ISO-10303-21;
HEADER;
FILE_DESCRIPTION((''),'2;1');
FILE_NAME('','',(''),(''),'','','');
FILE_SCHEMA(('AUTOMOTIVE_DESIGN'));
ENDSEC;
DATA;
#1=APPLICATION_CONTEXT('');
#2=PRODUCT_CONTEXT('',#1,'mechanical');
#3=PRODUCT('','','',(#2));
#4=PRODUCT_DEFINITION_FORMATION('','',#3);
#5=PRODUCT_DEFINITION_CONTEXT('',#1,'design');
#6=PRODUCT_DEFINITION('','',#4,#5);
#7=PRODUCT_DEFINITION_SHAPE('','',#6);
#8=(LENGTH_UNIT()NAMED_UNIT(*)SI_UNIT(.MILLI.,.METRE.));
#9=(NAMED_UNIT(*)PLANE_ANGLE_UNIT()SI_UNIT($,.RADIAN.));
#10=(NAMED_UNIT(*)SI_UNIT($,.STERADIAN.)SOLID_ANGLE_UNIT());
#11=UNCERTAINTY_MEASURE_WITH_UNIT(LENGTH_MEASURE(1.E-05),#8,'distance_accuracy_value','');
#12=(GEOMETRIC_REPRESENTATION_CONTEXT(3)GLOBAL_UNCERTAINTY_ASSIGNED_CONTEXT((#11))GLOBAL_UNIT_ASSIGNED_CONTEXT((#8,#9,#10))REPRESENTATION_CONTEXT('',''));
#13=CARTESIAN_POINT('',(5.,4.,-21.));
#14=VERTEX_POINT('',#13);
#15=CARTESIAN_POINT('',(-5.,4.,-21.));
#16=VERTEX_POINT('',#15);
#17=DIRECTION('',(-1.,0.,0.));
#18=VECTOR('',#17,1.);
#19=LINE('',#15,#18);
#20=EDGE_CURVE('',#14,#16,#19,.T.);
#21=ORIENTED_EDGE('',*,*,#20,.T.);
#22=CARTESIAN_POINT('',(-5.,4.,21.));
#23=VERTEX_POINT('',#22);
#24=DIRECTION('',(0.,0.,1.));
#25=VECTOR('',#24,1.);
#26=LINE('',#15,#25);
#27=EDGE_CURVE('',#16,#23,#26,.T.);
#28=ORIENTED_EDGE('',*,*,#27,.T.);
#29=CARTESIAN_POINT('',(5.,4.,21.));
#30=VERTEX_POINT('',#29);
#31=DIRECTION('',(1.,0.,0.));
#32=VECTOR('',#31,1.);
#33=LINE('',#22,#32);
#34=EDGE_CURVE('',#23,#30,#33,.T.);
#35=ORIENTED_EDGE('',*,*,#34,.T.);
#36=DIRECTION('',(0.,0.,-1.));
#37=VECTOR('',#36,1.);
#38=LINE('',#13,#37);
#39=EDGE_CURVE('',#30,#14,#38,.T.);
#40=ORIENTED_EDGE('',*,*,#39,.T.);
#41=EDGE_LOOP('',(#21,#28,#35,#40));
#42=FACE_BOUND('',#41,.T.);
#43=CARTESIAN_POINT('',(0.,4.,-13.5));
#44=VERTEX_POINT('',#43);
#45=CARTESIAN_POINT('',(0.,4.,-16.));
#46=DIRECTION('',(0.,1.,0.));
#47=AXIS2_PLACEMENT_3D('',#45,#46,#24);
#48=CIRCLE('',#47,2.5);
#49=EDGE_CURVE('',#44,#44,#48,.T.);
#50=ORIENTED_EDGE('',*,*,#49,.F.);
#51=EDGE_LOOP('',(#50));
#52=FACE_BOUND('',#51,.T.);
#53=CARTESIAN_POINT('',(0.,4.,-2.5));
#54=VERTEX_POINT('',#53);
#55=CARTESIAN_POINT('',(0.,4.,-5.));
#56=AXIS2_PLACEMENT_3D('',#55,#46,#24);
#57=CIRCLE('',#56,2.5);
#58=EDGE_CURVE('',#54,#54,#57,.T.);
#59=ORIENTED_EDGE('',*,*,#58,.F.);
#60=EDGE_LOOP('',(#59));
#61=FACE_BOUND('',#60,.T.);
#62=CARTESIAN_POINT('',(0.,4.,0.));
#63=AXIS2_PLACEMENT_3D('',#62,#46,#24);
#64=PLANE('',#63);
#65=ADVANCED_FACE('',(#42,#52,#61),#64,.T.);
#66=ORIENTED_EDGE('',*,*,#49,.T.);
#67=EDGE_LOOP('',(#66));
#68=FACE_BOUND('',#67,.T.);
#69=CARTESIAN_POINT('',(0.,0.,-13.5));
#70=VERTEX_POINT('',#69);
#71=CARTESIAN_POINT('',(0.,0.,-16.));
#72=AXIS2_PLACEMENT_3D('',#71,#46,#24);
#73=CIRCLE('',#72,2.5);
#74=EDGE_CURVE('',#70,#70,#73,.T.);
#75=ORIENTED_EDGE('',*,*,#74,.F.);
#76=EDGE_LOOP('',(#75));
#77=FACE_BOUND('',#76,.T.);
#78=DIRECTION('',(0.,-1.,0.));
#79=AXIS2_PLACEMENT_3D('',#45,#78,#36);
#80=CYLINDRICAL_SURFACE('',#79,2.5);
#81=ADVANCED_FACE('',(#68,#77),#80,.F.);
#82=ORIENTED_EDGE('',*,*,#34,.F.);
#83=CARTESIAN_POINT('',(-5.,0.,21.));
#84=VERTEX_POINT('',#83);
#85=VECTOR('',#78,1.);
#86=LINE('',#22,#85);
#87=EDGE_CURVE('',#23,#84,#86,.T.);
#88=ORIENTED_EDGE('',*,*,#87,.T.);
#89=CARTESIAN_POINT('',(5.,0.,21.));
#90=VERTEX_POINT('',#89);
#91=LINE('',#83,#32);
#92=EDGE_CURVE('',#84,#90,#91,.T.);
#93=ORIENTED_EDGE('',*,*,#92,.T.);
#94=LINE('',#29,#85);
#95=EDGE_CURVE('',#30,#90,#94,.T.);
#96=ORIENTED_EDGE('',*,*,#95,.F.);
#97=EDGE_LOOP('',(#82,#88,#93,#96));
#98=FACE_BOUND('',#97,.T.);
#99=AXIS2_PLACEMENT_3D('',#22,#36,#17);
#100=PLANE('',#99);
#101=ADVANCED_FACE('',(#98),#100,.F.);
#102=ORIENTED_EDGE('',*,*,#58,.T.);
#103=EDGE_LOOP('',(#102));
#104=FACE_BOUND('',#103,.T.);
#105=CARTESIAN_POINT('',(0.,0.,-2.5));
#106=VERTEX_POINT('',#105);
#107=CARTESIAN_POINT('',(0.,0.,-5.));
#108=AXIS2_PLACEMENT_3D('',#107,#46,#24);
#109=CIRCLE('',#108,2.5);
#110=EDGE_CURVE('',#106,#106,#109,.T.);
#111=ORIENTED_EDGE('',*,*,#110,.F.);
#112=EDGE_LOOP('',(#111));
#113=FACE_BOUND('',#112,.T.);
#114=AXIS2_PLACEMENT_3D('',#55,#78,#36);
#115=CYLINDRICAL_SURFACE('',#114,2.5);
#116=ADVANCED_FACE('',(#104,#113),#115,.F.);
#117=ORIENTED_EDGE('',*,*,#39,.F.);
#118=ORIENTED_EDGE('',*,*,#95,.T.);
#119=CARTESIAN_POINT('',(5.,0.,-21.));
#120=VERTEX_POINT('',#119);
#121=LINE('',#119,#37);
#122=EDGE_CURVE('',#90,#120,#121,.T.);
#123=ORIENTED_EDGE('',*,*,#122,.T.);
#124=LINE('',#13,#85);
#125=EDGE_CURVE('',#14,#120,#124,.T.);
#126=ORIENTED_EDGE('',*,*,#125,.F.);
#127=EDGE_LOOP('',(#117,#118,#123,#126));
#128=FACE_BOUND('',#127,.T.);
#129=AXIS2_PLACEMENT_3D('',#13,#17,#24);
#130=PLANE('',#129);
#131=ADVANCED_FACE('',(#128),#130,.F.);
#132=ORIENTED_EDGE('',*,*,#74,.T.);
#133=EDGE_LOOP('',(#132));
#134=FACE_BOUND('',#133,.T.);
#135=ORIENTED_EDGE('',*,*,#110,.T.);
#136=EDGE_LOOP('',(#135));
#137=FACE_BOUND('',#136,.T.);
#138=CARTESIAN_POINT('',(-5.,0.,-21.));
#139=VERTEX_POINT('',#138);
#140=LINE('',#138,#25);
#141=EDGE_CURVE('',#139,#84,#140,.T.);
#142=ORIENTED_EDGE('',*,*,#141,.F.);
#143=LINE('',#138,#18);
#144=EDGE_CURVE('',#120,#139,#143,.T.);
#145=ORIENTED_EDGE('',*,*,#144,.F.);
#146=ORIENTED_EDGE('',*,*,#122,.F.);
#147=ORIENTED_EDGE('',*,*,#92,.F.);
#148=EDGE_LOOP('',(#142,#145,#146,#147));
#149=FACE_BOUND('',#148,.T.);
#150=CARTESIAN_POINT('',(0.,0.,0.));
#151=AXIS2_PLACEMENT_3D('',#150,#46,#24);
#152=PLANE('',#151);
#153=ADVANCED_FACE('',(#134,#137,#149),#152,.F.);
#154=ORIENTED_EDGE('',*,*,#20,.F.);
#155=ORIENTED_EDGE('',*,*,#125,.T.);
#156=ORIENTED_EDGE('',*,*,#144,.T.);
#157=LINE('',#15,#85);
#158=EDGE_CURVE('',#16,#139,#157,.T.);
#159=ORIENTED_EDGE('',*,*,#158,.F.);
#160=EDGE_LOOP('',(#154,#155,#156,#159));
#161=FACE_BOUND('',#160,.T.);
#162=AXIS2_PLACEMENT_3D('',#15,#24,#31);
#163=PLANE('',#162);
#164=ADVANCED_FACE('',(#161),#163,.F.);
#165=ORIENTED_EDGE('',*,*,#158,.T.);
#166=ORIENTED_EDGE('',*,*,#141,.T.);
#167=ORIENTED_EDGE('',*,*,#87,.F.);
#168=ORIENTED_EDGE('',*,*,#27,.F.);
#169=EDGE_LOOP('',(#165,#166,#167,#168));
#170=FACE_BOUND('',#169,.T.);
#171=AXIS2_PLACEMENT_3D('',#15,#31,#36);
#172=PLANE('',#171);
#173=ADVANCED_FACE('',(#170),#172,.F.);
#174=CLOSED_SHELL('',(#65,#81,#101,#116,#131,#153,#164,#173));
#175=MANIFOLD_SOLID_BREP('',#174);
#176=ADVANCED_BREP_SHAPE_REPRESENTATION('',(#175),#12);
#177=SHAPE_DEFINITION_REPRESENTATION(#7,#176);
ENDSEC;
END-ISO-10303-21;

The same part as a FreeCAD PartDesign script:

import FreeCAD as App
import Part
import Sketcher


def add_polygon(sketch, points):
    """Adds a closed chain of lines whose ends are joined by coincident constraints."""
    first, n = sketch.GeometryCount, len(points)
    for a, b in zip(points, points[1:] + points[:1]):
        sketch.addGeometry(Part.LineSegment(App.Vector(*a, 0), App.Vector(*b, 0)), False)
    for i in range(n):
        sketch.addConstraint(Sketcher.Constraint("Coincident", first + i, 2, first + (i + 1) % n, 1))

doc = App.newDocument("Part")
body = doc.addObject("PartDesign::Body", "Body")

# Sketch on XZ plane
sketch1 = body.newObject("Sketcher::SketchObject", "Sketch")
sketch1.AttachmentSupport = (doc.getObject("XZ_Plane"), [""])
sketch1.MapMode = "FlatFace"
add_polygon(sketch1, [(-5, -21), (-5, 21), (5, 21), (5, -21)])  # lines 0-3
sketch1.addGeometry(Part.Circle(App.Vector(0, -5, 0), App.Vector(0, 0, 1), 2.5), False)  # 4
sketch1.addGeometry(Part.Circle(App.Vector(0, -16, 0), App.Vector(0, 0, 1), 2.5), False)  # 5
sketch1.addConstraint([
    Sketcher.Constraint("Vertical", 0),
    Sketcher.Constraint("Horizontal", 1),
    Sketcher.Constraint("Vertical", 2),
    Sketcher.Constraint("Horizontal", 3),
    Sketcher.Constraint("Equal", 4, 5),
    Sketcher.Constraint("Symmetric", 0, 2, 2, 2, -1, 1),
    Sketcher.Constraint("PointOnObject", 4, 3, -2),
    Sketcher.Constraint("PointOnObject", 5, 3, -2),
    Sketcher.Constraint("Diameter", 4, 5.0),
    Sketcher.Constraint("DistanceX", 1, 1, 1, 2, 10.0),
    Sketcher.Constraint("DistanceY", 0, 1, 0, 2, 42.0),
    Sketcher.Constraint("DistanceY", 4, 3, -1, 1, 5.0),
    Sketcher.Constraint("DistanceY", 5, 3, -1, 1, 16.0),
])
pad1 = body.newObject("PartDesign::Pad", "Pad")
pad1.Profile = sketch1
pad1.Length = 4
pad1.Reversed = True

doc.recompute()
